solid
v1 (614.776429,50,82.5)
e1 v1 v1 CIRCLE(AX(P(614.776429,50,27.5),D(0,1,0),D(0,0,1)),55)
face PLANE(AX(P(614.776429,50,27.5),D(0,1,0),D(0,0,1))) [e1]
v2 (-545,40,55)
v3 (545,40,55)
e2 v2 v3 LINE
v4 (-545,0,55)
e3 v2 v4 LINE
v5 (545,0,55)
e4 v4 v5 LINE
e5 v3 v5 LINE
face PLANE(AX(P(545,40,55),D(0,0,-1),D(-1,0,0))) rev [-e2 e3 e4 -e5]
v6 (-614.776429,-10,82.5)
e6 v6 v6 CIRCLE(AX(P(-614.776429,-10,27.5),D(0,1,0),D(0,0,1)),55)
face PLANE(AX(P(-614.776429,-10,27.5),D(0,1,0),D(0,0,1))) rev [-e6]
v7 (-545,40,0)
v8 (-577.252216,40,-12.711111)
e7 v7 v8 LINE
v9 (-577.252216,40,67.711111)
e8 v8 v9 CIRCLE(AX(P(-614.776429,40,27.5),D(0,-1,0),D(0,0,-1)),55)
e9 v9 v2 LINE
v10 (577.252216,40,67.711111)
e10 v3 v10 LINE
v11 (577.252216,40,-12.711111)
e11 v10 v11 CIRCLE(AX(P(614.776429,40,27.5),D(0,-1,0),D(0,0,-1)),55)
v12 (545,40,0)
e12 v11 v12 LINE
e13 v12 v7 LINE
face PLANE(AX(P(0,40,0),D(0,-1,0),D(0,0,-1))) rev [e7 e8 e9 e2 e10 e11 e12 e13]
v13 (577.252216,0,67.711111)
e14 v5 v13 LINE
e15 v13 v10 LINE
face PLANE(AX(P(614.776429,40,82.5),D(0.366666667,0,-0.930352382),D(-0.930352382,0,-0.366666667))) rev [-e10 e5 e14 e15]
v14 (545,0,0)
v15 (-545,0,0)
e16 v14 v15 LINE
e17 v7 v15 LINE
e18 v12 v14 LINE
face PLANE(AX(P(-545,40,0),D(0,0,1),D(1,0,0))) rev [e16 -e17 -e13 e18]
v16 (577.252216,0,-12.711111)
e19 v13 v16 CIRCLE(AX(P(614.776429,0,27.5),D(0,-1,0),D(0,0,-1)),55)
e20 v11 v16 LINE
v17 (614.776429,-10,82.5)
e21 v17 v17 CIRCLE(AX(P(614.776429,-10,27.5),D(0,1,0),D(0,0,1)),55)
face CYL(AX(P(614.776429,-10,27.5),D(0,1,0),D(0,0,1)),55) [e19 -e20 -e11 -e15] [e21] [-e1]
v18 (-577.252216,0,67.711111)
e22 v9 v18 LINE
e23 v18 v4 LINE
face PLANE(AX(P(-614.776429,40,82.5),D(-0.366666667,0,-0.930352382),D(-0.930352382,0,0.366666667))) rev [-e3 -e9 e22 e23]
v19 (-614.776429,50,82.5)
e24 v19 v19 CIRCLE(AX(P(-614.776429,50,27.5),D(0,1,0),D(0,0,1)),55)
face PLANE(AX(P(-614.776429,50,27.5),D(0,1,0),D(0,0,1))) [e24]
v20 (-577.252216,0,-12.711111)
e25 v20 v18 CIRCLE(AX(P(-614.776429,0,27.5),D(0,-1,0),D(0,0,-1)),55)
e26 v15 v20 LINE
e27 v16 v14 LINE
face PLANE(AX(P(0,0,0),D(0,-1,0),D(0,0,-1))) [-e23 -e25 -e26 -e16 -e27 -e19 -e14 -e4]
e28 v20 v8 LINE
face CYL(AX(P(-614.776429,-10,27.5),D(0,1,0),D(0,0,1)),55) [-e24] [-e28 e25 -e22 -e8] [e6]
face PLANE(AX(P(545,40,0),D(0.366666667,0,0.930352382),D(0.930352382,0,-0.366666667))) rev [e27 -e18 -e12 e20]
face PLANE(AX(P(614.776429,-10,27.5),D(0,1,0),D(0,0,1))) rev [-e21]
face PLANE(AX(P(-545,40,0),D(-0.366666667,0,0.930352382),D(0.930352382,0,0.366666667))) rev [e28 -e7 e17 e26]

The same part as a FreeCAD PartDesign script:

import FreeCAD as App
import Part
import Sketcher
Q = App.Units.Quantity


def add_polygon(sketch, points):
    """Adds a closed chain of lines whose ends are joined by coincident constraints."""
    first, n = sketch.GeometryCount, len(points)
    for a, b in zip(points, points[1:] + points[:1]):
        sketch.addGeometry(Part.LineSegment(App.Vector(*a, 0), App.Vector(*b, 0)), False)
    for i in range(n):
        sketch.addConstraint(Sketcher.Constraint("Coincident", first + i, 2, first + (i + 1) % n, 1))

doc = App.newDocument("Part")
body = doc.addObject("PartDesign::Body", "Body")

# Sketch on XZ plane
sketch1 = body.newObject("Sketcher::SketchObject", "Sketch")
sketch1.AttachmentSupport = (doc.getObject("XZ_Plane"), [""])
sketch1.MapMode = "FlatFace"
add_polygon(sketch1, [(545, 0), (-545, 0), (-614.776429, -27.5), (-614.776429, 82.5), (-545, 55), (545, 55), (614.776429, 82.5), (614.776429, -27.5)])  # lines 0-7
sketch1.addConstraint(Sketcher.Constraint("Horizontal", 0))
sketch1.addConstraint(Sketcher.Constraint("Vertical", 2))
sketch1.addConstraint(Sketcher.Constraint("Horizontal", 4))
sketch1.addConstraint(Sketcher.Constraint("Vertical", 6))
sketch1.addConstraint(Sketcher.Constraint("Symmetric", 0, 2, 7, 2, -1, 1))
sketch1.addConstraint(Sketcher.Constraint("Symmetric", 2, 2, 5, 2, -2))
sketch1.addConstraint(Sketcher.Constraint("Parallel", 1, 5))
sketch1.addConstraint(Sketcher.Constraint("Parallel", 3, 7))
sketch1.addConstraint(Sketcher.Constraint("Horizontal", 1, 2, 6, 2))
sketch1.addConstraint(Sketcher.Constraint("Vertical", 0, 2, 3, 2))
sketch1.addConstraint(Sketcher.Constraint("DistanceX", 0, 2, 0, 1, Q("1090 mm")))
sketch1.addConstraint(Sketcher.Constraint("DistanceY", 2, 1, 2, 2, Q("110 mm")))
sketch1.addConstraint(Sketcher.Constraint("Distance", 1, Q("75 mm")))
sketch1.addConstraint(Sketcher.Constraint("DistanceY", -1, 1, 3, 2, Q("55 mm")))
pad1 = body.newObject("PartDesign::Pad", "Pad")
pad1.Profile = sketch1
pad1.Length = 40
pad1.Reversed = True

# Sketch on XZ plane
sketch2 = body.newObject("Sketcher::SketchObject", "Sketch001")
sketch2.AttachmentSupport = (doc.getObject("XZ_Plane"), [""])
sketch2.MapMode = "FlatFace"
sketch2.AttachmentOffset = App.Placement(App.Vector(0, 0, -40), App.Rotation())
sketch2.addGeometry(Part.Circle(App.Vector(-614.776429, 27.5, 0), App.Vector(0, 0, 1), 55), False)
sketch2.addGeometry(Part.Circle(App.Vector(614.776429, 27.5, 0), App.Vector(0, 0, 1), 55), False)
sketch2.addConstraint(Sketcher.Constraint("Equal", 0, 1))
sketch2.addConstraint(Sketcher.Constraint("Symmetric", 0, 3, 1, 3, -2))
sketch2.addConstraint(Sketcher.Constraint("Diameter", 0, Q("110 mm")))
sketch2.addConstraint(Sketcher.Constraint("DistanceY", -1, 1, 0, 3, Q("27.5 mm")))
sketch2.addConstraint(Sketcher.Constraint("DistanceX", 0, 3, -1, 1, Q("614.776429 mm")))
pad2 = body.newObject("PartDesign::Pad", "Pad001")
pad2.Profile = sketch2
pad2.Type = "TwoLengths"
pad2.Length = 10
pad2.Length2 = 50
pad2.Reversed = True

doc.recompute()
